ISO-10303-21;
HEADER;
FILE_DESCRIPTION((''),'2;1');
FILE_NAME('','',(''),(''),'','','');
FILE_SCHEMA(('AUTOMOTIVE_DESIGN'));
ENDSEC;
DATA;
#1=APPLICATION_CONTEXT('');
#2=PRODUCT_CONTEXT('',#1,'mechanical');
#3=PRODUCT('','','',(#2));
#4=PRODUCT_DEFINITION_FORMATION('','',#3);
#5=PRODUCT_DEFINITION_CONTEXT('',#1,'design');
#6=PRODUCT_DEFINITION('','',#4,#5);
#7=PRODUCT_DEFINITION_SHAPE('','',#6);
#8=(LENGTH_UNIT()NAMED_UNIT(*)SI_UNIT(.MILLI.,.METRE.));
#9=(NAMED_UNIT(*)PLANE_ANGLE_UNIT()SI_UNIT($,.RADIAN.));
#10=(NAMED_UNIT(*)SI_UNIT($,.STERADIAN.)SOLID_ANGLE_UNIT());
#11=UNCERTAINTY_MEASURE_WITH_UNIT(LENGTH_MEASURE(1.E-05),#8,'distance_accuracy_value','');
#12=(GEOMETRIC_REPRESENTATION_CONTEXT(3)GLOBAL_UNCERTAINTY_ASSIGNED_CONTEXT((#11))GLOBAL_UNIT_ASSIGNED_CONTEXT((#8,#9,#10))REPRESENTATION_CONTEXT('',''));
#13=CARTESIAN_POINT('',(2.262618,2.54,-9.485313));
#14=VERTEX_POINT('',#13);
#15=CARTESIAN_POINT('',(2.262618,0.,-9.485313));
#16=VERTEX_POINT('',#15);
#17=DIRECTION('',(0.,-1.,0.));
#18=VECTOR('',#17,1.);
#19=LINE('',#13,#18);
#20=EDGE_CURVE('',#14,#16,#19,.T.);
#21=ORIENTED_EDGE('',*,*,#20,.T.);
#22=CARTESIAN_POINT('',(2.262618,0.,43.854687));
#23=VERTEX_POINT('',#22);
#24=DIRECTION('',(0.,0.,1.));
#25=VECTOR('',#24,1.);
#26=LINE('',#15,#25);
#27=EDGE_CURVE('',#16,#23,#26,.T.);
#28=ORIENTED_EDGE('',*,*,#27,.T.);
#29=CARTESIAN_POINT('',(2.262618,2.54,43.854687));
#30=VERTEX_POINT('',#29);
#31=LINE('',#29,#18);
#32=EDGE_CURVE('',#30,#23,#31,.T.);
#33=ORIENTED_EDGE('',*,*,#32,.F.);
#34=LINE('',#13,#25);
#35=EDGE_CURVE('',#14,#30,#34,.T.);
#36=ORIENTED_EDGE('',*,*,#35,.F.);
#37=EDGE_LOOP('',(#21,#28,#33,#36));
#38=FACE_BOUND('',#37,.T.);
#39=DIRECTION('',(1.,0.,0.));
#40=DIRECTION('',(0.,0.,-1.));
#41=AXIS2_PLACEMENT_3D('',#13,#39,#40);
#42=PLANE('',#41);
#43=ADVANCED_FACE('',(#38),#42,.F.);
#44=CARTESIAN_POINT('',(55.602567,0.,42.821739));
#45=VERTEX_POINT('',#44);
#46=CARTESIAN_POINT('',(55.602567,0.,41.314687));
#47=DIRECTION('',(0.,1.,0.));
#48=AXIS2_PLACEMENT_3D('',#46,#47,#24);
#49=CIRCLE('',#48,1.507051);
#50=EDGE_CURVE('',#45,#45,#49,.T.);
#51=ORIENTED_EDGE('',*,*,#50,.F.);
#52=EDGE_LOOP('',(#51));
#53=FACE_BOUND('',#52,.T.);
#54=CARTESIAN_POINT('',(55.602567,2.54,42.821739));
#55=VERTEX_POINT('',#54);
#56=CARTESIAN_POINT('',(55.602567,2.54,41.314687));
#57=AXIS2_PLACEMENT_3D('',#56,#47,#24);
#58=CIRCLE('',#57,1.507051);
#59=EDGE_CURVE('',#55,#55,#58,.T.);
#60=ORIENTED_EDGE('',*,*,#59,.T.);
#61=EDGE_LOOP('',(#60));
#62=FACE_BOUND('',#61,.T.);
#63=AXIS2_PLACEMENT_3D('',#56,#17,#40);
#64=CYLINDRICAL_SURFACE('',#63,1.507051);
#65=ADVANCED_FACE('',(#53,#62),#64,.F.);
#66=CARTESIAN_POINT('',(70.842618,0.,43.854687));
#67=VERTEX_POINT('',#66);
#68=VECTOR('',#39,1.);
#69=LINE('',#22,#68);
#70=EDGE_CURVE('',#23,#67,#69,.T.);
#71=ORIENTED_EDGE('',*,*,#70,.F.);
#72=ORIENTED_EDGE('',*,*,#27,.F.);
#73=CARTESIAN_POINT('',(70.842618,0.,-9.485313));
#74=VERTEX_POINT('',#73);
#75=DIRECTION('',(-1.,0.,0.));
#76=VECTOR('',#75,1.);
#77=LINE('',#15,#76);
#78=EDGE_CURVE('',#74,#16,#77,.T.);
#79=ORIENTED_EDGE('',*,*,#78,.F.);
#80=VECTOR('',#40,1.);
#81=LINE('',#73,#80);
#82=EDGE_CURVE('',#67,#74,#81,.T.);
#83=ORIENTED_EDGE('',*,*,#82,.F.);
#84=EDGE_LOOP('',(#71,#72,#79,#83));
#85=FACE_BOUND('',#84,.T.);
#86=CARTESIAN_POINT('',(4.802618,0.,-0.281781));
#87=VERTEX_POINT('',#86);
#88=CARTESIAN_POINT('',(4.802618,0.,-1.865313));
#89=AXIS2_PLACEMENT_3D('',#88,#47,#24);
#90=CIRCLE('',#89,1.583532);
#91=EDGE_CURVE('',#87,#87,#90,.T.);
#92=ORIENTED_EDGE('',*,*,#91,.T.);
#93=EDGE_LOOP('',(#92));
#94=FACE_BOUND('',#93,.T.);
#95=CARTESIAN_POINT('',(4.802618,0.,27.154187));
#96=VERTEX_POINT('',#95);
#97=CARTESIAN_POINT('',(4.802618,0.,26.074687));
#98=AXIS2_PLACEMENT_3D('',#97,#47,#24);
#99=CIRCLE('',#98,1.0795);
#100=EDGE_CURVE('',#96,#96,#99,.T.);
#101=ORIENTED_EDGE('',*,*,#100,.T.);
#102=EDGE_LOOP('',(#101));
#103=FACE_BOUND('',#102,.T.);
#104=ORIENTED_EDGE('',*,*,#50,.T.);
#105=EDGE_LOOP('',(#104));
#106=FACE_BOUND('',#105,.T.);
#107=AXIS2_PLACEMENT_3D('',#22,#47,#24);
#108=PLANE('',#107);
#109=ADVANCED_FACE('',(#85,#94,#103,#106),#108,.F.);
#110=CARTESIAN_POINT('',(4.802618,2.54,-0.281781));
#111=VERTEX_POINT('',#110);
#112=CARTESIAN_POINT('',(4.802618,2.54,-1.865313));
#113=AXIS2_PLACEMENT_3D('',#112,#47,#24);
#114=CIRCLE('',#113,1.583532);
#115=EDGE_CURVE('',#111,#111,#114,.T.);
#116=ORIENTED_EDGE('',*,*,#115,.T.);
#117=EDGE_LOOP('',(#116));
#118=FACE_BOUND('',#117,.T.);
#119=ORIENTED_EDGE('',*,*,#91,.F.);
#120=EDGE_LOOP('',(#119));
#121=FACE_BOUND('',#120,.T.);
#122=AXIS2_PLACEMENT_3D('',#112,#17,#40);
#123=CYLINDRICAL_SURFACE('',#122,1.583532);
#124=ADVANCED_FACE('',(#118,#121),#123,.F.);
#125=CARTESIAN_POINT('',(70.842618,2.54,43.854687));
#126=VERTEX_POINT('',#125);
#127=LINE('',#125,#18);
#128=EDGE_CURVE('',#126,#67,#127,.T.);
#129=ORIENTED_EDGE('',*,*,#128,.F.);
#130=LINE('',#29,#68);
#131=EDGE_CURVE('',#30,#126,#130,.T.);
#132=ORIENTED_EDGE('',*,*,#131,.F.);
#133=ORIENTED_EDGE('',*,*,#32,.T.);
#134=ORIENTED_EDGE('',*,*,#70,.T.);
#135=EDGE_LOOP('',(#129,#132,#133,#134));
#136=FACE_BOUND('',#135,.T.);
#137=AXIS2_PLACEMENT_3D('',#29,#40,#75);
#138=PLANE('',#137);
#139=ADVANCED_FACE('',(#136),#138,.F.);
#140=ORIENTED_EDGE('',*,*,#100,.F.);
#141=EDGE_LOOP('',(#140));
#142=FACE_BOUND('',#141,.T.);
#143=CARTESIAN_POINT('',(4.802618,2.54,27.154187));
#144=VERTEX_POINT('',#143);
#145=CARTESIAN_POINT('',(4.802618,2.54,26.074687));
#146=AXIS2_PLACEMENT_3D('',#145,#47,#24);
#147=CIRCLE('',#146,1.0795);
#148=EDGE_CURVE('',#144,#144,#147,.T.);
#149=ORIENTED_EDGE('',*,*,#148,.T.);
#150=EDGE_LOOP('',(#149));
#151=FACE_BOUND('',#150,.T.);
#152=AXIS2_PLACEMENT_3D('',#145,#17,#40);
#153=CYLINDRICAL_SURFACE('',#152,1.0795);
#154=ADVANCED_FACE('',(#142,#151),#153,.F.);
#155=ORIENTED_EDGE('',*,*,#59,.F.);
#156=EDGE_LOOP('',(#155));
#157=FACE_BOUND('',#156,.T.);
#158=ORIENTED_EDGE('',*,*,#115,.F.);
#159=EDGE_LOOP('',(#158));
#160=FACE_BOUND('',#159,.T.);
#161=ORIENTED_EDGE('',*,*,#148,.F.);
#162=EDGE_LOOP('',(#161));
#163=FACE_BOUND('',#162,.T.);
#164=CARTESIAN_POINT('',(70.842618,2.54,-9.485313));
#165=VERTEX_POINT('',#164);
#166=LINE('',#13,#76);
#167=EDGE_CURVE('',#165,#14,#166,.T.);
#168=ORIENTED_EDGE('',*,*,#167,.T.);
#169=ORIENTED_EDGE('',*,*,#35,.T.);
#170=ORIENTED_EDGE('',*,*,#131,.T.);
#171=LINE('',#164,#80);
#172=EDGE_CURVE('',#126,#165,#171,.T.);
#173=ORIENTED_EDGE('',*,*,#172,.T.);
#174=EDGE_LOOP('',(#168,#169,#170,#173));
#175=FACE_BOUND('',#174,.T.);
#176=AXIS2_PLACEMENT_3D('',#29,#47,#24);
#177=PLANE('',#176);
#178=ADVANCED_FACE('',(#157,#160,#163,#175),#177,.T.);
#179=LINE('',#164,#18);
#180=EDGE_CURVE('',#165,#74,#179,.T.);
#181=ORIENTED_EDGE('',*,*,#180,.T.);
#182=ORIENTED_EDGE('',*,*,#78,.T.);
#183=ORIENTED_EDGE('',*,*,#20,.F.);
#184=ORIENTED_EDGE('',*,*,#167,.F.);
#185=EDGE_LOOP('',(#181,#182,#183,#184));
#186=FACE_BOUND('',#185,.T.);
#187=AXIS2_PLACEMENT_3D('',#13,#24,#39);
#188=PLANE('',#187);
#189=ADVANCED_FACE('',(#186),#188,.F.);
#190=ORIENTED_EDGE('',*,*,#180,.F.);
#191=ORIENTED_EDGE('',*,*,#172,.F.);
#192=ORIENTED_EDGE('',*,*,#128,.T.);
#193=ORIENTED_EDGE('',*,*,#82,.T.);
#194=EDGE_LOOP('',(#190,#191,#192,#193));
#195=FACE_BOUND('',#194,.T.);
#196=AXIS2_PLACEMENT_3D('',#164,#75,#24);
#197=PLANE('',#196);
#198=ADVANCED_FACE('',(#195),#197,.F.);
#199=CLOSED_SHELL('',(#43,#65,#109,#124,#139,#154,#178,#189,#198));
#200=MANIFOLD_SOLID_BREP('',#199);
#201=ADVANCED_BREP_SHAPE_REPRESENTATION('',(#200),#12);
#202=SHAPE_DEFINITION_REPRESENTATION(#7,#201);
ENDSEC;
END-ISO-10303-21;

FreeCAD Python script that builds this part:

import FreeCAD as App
import Part
import Sketcher
from FreeCAD import Vector
Q = App.Units.Quantity

doc = App.newDocument("Part")
body = doc.addObject("PartDesign::Body", "Body")

sketch1 = body.newObject("Sketcher::SketchObject", "Sketch")
sketch1.AttachmentSupport = (doc.getObject("XZ_Plane"), [""])
sketch1.MapMode = "FlatFace"
sketch1.addGeometry([
    Part.LineSegment(Vector(2.262618, -9.485312, 0), Vector(2.262618, 43.854687, 0)),
    Part.LineSegment(Vector(2.262618, 43.854687, 0), Vector(70.842618, 43.854687, 0)),
    Part.LineSegment(Vector(70.842618, 43.854687, 0), Vector(70.842618, -9.485312, 0)),
    Part.LineSegment(Vector(70.842618, -9.485312, 0), Vector(2.262618, -9.485312, 0)),
    Part.Circle(Vector(4.802618, 26.074687, 0), Vector(0, 0, 1), 1.0795),
    Part.Circle(Vector(55.602567, 41.314687, 0), Vector(0, 0, 1), 1.507051),
    Part.Circle(Vector(4.802618, -1.865312, 0), Vector(0, 0, 1), 1.583532),
], False)
sketch1.addConstraint([
    Sketcher.Constraint("Coincident", 0, 2, 1, 1),
    Sketcher.Constraint("Coincident", 1, 2, 2, 1),
    Sketcher.Constraint("Coincident", 2, 2, 3, 1),
    Sketcher.Constraint("Coincident", 3, 2, 0, 1),
    Sketcher.Constraint("Vertical", 0),
    Sketcher.Constraint("Horizontal", 1),
    Sketcher.Constraint("Vertical", 2),
    Sketcher.Constraint("Horizontal", 3),
    Sketcher.Constraint("Vertical", 4, 3, 6, 3),
    Sketcher.Constraint("Diameter", 4, Q("0.085 in")),
    Sketcher.Constraint("DistanceX", 1, 1, 1, 2, Q("2.7 in")),
    Sketcher.Constraint("DistanceY", 0, 1, 0, 2, Q("2.1 in")),
    Sketcher.Constraint("DistanceY", 2, 2, 5, 3, Q("2 in")),
    Sketcher.Constraint("DistanceY", 4, 3, 5, 3, Q("0.6 in")),
    Sketcher.Constraint("DistanceY", 6, 3, 4, 3, Q("1.1 in")),
    Sketcher.Constraint("DistanceX", 0, 2, 4, 3, Q("0.1 in")),
    Sketcher.Constraint("Diameter", 5, Q("3.014102 mm")),
    Sketcher.Constraint("Diameter", 6, Q("3.167063 mm")),
    Sketcher.Constraint("DistanceX", 4, 3, 5, 3, Q("50.799949 mm")),
    Sketcher.Constraint("DistanceX", -1, 1, 4, 3, Q("4.802618 mm")),
    Sketcher.Constraint("DistanceY", -1, 1, 4, 3, Q("26.074687 mm")),
])
pad1 = body.newObject("PartDesign::Pad", "Pad")
pad1.Profile = sketch1
pad1.Length = Q("0.1 in")
pad1.Reversed = True

doc.recompute()
